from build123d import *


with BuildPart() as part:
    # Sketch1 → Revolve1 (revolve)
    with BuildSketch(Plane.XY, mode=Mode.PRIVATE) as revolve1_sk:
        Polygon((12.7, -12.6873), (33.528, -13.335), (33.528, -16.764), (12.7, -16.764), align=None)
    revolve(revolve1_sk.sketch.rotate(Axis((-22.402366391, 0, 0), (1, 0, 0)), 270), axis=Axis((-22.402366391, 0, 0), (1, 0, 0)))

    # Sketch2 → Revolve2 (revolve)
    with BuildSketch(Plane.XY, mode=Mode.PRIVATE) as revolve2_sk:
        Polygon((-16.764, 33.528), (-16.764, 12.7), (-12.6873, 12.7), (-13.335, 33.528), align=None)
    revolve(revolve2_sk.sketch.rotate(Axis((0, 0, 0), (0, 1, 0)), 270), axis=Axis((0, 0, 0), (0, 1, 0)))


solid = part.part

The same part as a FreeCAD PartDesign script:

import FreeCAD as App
import Part
import Sketcher
from FreeCAD import Vector
Q = App.Units.Quantity


def add_polygon(sketch, points):
    """Adds a closed chain of lines whose ends are joined by coincident constraints."""
    first, n = sketch.GeometryCount, len(points)
    for a, b in zip(points, points[1:] + points[:1]):
        sketch.addGeometry(Part.LineSegment(App.Vector(*a, 0), App.Vector(*b, 0)), False)
    for i in range(n):
        sketch.addConstraint(Sketcher.Constraint("Coincident", first + i, 2, first + (i + 1) % n, 1))

doc = App.newDocument("Part")
params = doc.addObject("Spreadsheet::Sheet", "Params")
for row, (alias, value) in enumerate([
    ("sketch1_width", "0.82 in"),
    ("sketch1_height", "0.135 in"),
    ("revolution_angle", "360 deg"),
    ("sketch2_height", "0.82 in"),
    ("sketch2_width", "0.135 in"),
    ("revolution2_angle", "360 deg"),
], start=1):
    params.set(f"A{row}", alias)
    params.set(f"B{row}", "=" + value)
    params.setAlias(f"B{row}", alias)

body = doc.addObject("PartDesign::Body", "Body")

# Sketch on XY plane
sketch1 = body.newObject("Sketcher::SketchObject", "Sketch")
sketch1.AttachmentSupport = (doc.getObject("XY_Plane"), [""])
sketch1.MapMode = "FlatFace"
add_polygon(sketch1, [(33.528, -13.335), (12.7, -12.6873), (12.7, -16.764), (33.528, -16.764)])  # lines 0-3
sketch1.addConstraint([
    Sketcher.Constraint("Vertical", 1),
    Sketcher.Constraint("Horizontal", 2),
    Sketcher.Constraint("Vertical", 3),
    Sketcher.Constraint("DistanceX", 2, 1, 2, 2, Q("0.82 in")),
    Sketcher.Constraint("DistanceX", -1, 1, 0, 2, Q("0.5 in")),
    Sketcher.Constraint("DistanceY", 3, 1, 3, 2, Q("0.135 in")),
    Sketcher.Constraint("DistanceY", 1, 2, -1, 1, Q("0.66 in")),
    Sketcher.Constraint("DistanceY", 1, 2, 1, 1, Q("0.1605 in")),
])
sketch1.setExpression("Constraints[7]", "Params.sketch1_width")
sketch1.setExpression("Constraints[9]", "Params.sketch1_height")
revolution = body.newObject("PartDesign::Revolution", "Revolution")
revolution.Profile = sketch1
revolution.ReferenceAxis = (sketch1, ["H_Axis"])
revolution.setExpression("Angle", "Params.revolution_angle")

# Sketch on XY plane
sketch2 = body.newObject("Sketcher::SketchObject", "Sketch001")
sketch2.AttachmentSupport = (doc.getObject("XY_Plane"), [""])
sketch2.MapMode = "FlatFace"
add_polygon(sketch2, [(-16.764, 33.528), (-16.764, 12.7), (-12.6873, 12.7), (-13.335, 33.528)])  # lines 0-3
sketch2.addConstraint([
    Sketcher.Constraint("Vertical", 0),
    Sketcher.Constraint("Horizontal", 1),
    Sketcher.Constraint("Horizontal", 3),
    Sketcher.Constraint("DistanceY", 0, 2, 0, 1, Q("0.82 in")),
    Sketcher.Constraint("DistanceY", -1, 1, 0, 2, Q("0.5 in")),
    Sketcher.Constraint("DistanceX", 3, 2, 3, 1, Q("0.135 in")),
    Sketcher.Constraint("DistanceX", 0, 2, -1, 1, Q("0.66 in")),
    Sketcher.Constraint("DistanceX", 1, 1, 1, 2, Q("0.1605 in")),
])
sketch2.setExpression("Constraints[7]", "Params.sketch2_height")
sketch2.setExpression("Constraints[9]", "Params.sketch2_width")
revolution2 = body.newObject("PartDesign::Revolution", "Revolution001")
revolution2.Profile = sketch2
revolution2.ReferenceAxis = (sketch2, ["V_Axis"])
revolution2.setExpression("Angle", "Params.revolution2_angle")

doc.recompute()
